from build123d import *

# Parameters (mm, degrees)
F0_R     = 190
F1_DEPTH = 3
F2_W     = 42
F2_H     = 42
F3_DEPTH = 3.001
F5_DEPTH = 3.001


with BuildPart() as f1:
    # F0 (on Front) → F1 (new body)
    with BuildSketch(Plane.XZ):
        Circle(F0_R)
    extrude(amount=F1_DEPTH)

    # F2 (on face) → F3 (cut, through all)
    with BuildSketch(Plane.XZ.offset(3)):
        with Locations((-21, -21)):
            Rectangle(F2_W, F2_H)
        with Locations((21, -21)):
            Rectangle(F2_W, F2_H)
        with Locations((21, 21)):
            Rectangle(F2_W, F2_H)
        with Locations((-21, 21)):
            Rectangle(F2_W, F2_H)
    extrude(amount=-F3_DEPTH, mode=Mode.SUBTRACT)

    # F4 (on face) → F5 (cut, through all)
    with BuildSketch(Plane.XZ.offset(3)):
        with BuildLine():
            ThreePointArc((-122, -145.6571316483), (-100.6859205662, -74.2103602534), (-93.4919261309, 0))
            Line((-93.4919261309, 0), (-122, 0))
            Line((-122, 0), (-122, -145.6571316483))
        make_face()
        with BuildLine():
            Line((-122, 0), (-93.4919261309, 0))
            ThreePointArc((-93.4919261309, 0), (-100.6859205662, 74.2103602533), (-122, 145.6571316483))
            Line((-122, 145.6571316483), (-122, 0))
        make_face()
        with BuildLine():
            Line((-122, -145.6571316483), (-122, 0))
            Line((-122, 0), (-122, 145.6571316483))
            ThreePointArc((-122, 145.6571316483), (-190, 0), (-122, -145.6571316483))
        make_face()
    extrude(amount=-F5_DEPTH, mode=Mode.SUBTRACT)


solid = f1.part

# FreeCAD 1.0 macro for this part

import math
import FreeCAD as App
import Part
import Sketcher

V = App.Vector


def add_polygon(sketch, points):
    """Adds a closed chain of lines whose ends are joined by coincident constraints."""
    first, n = sketch.GeometryCount, len(points)
    for a, b in zip(points, points[1:] + points[:1]):
        sketch.addGeometry(Part.LineSegment(App.Vector(*a, 0), App.Vector(*b, 0)), False)
    for i in range(n):
        sketch.addConstraint(Sketcher.Constraint("Coincident", first + i, 2, first + (i + 1) % n, 1))

doc = App.newDocument("Part")
body = doc.addObject("PartDesign::Body", "Body")

sketch1 = doc.addObject("Sketcher::SketchObject", "Sketch")
body.addObject(sketch1)
sketch1.AttachmentSupport = (doc.XZ_Plane, [""])
sketch1.MapMode = "FlatFace"
sketch1.addGeometry(Part.Circle(V(0, 0, 0), V(0, 0, 1), 190), False)
sketch1.addConstraint([
    Sketcher.Constraint("Coincident", 0, 3, -1, 1),
    Sketcher.Constraint("Diameter", 0, 380.0),
])
pad1 = doc.addObject("PartDesign::Pad", "Pad")
body.addObject(pad1)
pad1.Profile = sketch1
pad1.Length = 3

sketch2 = doc.addObject("Sketcher::SketchObject", "Sketch001")
body.addObject(sketch2)
sketch2.AttachmentSupport = (doc.XZ_Plane, [""])
sketch2.MapMode = "FlatFace"
sketch2.AttachmentOffset = App.Placement(V(0, 0, 3), App.Rotation())
add_polygon(sketch2, [(-42, -42), (42, -42), (42, 42), (-42, 42)])
sketch2.addConstraint([
    Sketcher.Constraint("Horizontal", 0),
    Sketcher.Constraint("Vertical", 1),
    Sketcher.Constraint("Horizontal", 2),
    Sketcher.Constraint("Vertical", 3),
    Sketcher.Constraint("Symmetric", 0, 2, 2, 2, -1, 1),
    Sketcher.Constraint("Equal", 2, 1),
    Sketcher.Constraint("DistanceX", 0, 1, 0, 2, 84.0),
])
pocket1 = doc.addObject("PartDesign::Pocket", "Pocket")
body.addObject(pocket1)
pocket1.Profile = sketch2
pocket1.Type = "ThroughAll"

sketch3 = doc.addObject("Sketcher::SketchObject", "Sketch002")
body.addObject(sketch3)
sketch3.AttachmentSupport = (doc.XZ_Plane, [""])
sketch3.MapMode = "FlatFace"
sketch3.AttachmentOffset = App.Placement(V(0, 0, 3), App.Rotation())
sketch3.addGeometry([
    Part.ArcOfCircle(Part.Circle(V(-480, 0, 0), V(0, 0, 1), 386), math.radians(-22), math.radians(0)),
    Part.ArcOfCircle(Part.Circle(V(-480, 0, 0), V(0, 0, 1), 386), math.radians(0), math.radians(22)),
    Part.ArcOfCircle(Part.Circle(V(0, 0, 0), V(0, 0, 1), 190), math.radians(130), math.radians(230)),
], False)
sketch3.addConstraint([
    Sketcher.Constraint("Tangent", 0, 2, 1, 1),
    Sketcher.Constraint("Coincident", 1, 2, 2, 1),
    Sketcher.Constraint("Coincident", 2, 2, 0, 1),
    Sketcher.Constraint("Coincident", 2, 3, -1, 1),
    Sketcher.Constraint("Equal", 0, 1),
    Sketcher.Constraint("PointOnObject", 0, 3, -1),
    Sketcher.Constraint("PointOnObject", 0, 2, -1),
    Sketcher.Constraint("Radius", 2, 190.0),
    Sketcher.Constraint("DistanceX", 1, 2, -1, 1, 122.0),
    Sketcher.Constraint("Radius", 0, 386.359148),
])
pocket2 = doc.addObject("PartDesign::Pocket", "Pocket001")
body.addObject(pocket2)
pocket2.Profile = sketch3
pocket2.Type = "ThroughAll"

doc.recompute()
